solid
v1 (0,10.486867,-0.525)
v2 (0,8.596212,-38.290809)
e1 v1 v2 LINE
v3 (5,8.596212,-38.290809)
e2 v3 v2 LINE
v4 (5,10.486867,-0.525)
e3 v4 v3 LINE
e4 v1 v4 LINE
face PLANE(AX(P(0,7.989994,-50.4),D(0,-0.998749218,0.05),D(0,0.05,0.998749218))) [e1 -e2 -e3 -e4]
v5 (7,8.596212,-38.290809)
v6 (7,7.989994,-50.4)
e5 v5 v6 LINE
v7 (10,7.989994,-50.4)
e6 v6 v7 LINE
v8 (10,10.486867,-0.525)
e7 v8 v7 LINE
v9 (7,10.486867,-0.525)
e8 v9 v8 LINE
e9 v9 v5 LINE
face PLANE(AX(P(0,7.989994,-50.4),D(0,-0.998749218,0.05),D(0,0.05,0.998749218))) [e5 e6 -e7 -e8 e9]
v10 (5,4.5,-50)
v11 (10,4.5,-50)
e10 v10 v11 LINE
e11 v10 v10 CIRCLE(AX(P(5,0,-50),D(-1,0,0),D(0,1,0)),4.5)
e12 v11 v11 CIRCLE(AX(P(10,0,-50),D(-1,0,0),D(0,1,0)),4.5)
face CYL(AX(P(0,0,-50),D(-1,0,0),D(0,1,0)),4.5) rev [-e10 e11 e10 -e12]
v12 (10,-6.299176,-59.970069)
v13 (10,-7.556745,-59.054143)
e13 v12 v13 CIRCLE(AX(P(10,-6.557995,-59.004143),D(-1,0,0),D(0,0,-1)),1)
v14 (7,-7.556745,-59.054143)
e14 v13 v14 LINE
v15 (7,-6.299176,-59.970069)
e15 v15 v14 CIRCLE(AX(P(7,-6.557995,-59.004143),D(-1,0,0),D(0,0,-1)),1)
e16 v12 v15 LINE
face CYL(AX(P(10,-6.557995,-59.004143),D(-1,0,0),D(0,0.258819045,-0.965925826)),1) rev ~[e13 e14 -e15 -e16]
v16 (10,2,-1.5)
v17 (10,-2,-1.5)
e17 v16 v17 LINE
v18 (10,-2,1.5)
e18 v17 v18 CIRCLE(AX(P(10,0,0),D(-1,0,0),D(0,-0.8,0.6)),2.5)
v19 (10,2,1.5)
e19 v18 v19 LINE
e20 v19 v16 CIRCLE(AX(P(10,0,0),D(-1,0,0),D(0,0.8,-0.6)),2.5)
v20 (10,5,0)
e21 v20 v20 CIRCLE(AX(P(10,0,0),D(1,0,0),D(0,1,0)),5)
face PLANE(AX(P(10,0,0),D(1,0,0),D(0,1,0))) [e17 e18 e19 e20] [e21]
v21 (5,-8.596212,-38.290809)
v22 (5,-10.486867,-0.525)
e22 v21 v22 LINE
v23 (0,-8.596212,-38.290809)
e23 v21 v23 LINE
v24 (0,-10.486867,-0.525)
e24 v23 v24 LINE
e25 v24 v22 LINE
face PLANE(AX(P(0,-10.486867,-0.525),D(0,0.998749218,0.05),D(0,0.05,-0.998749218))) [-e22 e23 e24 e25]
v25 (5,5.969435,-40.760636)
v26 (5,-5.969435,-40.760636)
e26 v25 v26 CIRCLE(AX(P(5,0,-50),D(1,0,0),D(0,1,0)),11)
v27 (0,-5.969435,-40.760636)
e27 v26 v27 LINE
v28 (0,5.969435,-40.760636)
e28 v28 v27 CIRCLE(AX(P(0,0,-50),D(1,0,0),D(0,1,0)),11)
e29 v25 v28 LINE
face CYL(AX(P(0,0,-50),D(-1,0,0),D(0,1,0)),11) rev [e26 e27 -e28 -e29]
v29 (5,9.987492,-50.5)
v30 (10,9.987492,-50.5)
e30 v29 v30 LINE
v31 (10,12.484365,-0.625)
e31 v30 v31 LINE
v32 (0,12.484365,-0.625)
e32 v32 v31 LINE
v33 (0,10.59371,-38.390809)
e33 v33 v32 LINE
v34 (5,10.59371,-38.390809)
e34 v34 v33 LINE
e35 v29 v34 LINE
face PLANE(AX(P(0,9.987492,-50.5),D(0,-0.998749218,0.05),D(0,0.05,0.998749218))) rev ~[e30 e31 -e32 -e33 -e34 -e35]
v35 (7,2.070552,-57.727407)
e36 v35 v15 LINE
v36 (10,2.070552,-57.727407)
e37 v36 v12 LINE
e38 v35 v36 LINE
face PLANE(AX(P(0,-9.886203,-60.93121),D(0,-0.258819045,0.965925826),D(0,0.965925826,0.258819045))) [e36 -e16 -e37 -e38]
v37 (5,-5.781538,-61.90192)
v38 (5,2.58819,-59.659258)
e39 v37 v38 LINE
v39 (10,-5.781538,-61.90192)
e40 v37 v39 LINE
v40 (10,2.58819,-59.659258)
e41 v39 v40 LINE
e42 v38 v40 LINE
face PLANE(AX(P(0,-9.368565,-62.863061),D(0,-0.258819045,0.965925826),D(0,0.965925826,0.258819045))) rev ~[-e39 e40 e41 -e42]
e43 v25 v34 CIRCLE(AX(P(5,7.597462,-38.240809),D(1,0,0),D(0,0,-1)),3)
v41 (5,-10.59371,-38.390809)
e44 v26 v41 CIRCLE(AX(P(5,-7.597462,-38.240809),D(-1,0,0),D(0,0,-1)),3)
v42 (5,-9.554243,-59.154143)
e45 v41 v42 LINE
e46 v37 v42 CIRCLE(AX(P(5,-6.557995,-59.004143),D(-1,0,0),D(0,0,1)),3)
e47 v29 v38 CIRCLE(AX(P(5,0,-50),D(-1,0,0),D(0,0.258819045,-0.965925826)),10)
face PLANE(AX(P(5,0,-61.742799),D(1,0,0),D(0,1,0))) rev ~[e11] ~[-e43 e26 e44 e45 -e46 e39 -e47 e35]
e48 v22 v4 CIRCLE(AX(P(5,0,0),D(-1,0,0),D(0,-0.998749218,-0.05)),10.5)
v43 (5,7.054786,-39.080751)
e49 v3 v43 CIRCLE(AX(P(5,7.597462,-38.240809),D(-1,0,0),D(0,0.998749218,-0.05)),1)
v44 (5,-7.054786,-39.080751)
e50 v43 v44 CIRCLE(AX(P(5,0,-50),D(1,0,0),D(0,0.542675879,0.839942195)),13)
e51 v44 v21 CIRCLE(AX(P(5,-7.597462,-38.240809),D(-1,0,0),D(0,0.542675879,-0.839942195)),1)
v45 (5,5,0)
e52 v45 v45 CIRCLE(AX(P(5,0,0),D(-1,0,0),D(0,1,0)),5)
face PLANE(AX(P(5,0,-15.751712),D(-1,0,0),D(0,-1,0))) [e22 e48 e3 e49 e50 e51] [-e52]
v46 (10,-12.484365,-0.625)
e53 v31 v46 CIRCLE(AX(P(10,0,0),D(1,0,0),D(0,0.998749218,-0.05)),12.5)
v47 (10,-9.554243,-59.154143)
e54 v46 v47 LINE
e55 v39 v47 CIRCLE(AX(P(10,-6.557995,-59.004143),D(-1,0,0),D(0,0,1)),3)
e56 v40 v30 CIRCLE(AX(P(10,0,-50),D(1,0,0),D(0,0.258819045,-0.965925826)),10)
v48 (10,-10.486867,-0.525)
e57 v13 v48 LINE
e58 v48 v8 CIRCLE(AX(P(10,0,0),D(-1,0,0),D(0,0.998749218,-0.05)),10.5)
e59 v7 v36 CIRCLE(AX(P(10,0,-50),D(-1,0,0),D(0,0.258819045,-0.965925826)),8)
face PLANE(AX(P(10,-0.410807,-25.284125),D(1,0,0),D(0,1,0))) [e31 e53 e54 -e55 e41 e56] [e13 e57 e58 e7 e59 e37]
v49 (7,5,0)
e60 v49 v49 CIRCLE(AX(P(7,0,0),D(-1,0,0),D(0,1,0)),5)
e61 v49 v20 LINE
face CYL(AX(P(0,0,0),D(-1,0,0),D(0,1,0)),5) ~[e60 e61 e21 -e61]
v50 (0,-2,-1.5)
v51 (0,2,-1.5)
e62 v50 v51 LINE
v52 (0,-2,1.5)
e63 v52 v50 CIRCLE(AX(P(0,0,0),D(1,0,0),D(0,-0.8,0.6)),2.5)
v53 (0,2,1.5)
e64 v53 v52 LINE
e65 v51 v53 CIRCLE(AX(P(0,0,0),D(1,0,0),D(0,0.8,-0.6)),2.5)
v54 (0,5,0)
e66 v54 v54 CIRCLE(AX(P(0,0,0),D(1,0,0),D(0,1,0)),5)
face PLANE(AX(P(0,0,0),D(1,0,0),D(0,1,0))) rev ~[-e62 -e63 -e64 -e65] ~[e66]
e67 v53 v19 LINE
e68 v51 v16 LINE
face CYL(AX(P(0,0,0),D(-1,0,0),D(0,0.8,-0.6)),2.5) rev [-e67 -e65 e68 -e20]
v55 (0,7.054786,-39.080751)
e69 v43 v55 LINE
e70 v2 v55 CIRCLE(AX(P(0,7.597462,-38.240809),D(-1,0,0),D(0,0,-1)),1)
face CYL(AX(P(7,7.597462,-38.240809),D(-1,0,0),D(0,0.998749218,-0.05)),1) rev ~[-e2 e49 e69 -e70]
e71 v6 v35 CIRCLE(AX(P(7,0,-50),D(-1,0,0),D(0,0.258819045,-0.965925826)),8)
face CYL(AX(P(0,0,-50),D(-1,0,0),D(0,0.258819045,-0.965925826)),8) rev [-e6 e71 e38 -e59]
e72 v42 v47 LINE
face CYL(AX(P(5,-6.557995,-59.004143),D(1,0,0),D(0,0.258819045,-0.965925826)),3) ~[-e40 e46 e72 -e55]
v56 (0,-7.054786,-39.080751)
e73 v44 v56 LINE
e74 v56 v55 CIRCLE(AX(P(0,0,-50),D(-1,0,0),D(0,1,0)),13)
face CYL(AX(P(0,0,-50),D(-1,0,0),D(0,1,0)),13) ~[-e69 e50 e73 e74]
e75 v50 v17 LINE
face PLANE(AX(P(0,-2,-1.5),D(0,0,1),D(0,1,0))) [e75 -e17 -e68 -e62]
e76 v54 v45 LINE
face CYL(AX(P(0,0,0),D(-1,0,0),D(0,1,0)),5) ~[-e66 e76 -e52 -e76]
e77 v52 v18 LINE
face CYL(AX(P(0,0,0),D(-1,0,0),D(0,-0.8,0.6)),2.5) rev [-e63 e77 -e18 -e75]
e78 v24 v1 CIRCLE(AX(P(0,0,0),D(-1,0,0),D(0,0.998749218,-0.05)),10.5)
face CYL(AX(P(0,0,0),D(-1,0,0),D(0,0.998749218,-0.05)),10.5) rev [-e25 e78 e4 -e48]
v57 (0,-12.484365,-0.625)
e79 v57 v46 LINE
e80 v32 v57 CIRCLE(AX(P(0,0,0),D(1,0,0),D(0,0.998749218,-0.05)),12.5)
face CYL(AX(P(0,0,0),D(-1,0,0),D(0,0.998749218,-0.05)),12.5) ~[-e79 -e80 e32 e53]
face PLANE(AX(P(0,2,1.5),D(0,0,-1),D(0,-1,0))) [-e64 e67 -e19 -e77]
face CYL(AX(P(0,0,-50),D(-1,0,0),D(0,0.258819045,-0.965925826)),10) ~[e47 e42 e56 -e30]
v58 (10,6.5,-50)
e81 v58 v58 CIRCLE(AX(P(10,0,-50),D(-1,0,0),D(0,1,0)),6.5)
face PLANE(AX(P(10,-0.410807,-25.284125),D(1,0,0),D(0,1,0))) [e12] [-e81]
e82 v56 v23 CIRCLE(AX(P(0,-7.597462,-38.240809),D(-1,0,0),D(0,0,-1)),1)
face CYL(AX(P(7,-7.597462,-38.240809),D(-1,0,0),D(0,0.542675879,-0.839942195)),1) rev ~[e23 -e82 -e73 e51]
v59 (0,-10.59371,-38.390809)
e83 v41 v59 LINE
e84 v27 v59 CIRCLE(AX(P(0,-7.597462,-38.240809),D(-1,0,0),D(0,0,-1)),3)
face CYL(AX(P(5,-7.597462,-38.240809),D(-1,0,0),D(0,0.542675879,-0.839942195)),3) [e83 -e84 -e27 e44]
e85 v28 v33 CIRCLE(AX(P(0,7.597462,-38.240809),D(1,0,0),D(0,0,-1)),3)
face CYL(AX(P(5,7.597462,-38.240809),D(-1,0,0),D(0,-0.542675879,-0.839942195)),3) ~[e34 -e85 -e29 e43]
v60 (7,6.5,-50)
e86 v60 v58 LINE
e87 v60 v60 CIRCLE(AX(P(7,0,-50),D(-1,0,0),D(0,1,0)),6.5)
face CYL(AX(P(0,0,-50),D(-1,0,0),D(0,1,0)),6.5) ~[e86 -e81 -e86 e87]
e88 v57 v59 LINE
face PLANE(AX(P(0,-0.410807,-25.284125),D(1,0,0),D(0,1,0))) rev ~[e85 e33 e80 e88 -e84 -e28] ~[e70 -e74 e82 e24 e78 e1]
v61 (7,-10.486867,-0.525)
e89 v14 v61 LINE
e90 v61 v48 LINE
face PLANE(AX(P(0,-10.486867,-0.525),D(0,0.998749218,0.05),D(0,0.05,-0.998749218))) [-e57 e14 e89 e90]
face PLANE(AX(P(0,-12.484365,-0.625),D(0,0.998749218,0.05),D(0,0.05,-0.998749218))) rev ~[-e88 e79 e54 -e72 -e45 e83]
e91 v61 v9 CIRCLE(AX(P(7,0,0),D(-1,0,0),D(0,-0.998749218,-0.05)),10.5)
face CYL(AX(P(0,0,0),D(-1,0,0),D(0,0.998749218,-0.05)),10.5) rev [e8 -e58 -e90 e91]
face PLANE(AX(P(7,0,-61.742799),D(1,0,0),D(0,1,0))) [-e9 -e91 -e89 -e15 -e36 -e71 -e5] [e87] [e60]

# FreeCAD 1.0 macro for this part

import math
import FreeCAD as App
import Part
import Sketcher

V = App.Vector
Q = App.Units.Quantity


def edges_at(feature, points):
    """Names of the edges that pass closest to the given points."""
    edges = feature.Shape.Edges
    near = lambda p: min(range(len(edges)), key=lambda i: edges[i].distToShape(Part.Vertex(*p))[0])
    return sorted({f"Edge{near(p) + 1}" for p in points})


def faces_at(feature, points):
    """Names of the faces that lie closest to the given points."""
    faces = feature.Shape.Faces
    near = lambda p: min(range(len(faces)), key=lambda i: faces[i].distToShape(Part.Vertex(*p))[0])
    return sorted({f"Face{near(p) + 1}" for p in points})

doc = App.newDocument("Part")
body = doc.addObject("PartDesign::Body", "Body")

sketch1 = doc.addObject("Sketcher::SketchObject", "Sketch")
body.addObject(sketch1)
sketch1.AttachmentSupport = (doc.YZ_Plane, [""])
sketch1.MapMode = "FlatFace"
sketch1.addGeometry(Part.LineSegment(V(10, -50, 0), V(12, -1, 0)), False)
sketch1.addGeometry(Part.ArcOfCircle(Part.Circle(V(0, 0, 0), V(0, 0, 1), 12), math.radians(-3), math.radians(183)), False)
sketch1.addGeometry(Part.LineSegment(V(-12, -1, 0), V(-9, -63, 0)), False)
sketch1.addGeometry(Part.LineSegment(V(-9, -63, 0), V(3, -60, 0)), False)
sketch1.addGeometry(Part.ArcOfCircle(Part.Circle(V(0, -50, 0), V(0, 0, 1), 10), math.radians(-75), math.radians(-3)), False)
sketch1.addConstraint(Sketcher.Constraint("Tangent", 0, 2, 1, 1))
sketch1.addConstraint(Sketcher.Constraint("Tangent", 1, 2, 2, 1))
sketch1.addConstraint(Sketcher.Constraint("Coincident", 2, 2, 3, 1))
sketch1.addConstraint(Sketcher.Constraint("Tangent", 3, 2, 4, 1))
sketch1.addConstraint(Sketcher.Constraint("Tangent", 4, 2, 0, 1))
sketch1.addConstraint(Sketcher.Constraint("Coincident", 1, 3, -1, 1))
sketch1.addConstraint(Sketcher.Constraint("PointOnObject", 4, 3, -2))
sketch1.addConstraint(Sketcher.Constraint("Horizontal", 0, 2, 1, 2))
sketch1.addConstraint(Sketcher.Constraint("Radius", 4, Q("10 mm")))
sketch1.addConstraint(Sketcher.Constraint("Radius", 1, Q("12.5 mm")))
sketch1.addConstraint(Sketcher.Constraint("Angle", 3, Q("15 deg")))
sketch1.addConstraint(Sketcher.Constraint("DistanceY", 4, 3, -1, 1, Q("50 mm")))
pad1 = doc.addObject("PartDesign::Pad", "Pad")
body.addObject(pad1)
pad1.Profile = sketch1
pad1.Length = 10

sketch2 = doc.addObject("Sketcher::SketchObject", "Sketch001")
body.addObject(sketch2)
sketch2.AttachmentSupport = (doc.YZ_Plane, [""])
sketch2.MapMode = "FlatFace"
sketch2.addGeometry(Part.ArcOfCircle(Part.Circle(V(0, -50, 0), V(0, 0, 1), 11), math.radians(0), math.radians(180)), False)
sketch2.addGeometry(Part.LineSegment(V(-11, -50, 0), V(-11, -80, 0)), False)
sketch2.addGeometry(Part.LineSegment(V(-11, -80, 0), V(11, -80, 0)), False)
sketch2.addGeometry(Part.LineSegment(V(11, -80, 0), V(11, -50, 0)), False)
sketch2.addConstraint(Sketcher.Constraint("Tangent", 0, 2, 1, 1))
sketch2.addConstraint(Sketcher.Constraint("Coincident", 1, 2, 2, 1))
sketch2.addConstraint(Sketcher.Constraint("Coincident", 2, 2, 3, 1))
sketch2.addConstraint(Sketcher.Constraint("Tangent", 3, 2, 0, 1))
sketch2.addConstraint(Sketcher.Constraint("Vertical", 1))
sketch2.addConstraint(Sketcher.Constraint("Horizontal", 2))
sketch2.addConstraint(Sketcher.Constraint("Vertical", 3))
sketch2.addConstraint(Sketcher.Constraint("PointOnObject", 0, 3, -2))
sketch2.addConstraint(Sketcher.Constraint("Radius", 0, Q("11 mm")))
sketch2.addConstraint(Sketcher.Constraint("DistanceY", 1, 2, 1, 1, Q("30 mm")))
sketch2.addConstraint(Sketcher.Constraint("DistanceY", 0, 3, -1, 1, Q("50 mm")))
pocket1 = doc.addObject("PartDesign::Pocket", "Pocket")
body.addObject(pocket1)
pocket1.Profile = sketch2
pocket1.Length = 5
pocket1.Reversed = True

sketch3 = doc.addObject("Sketcher::SketchObject", "Sketch002")
body.addObject(sketch3)
sketch3.AttachmentSupport = (doc.YZ_Plane, [""])
sketch3.MapMode = "FlatFace"
sketch3.addGeometry(Part.Circle(V(0, -50, 0), V(0, 0, 1), 4.5), False)
sketch3.addConstraint(Sketcher.Constraint("PointOnObject", 0, 3, -2))
sketch3.addConstraint(Sketcher.Constraint("Diameter", 0, Q("9 mm")))
sketch3.addConstraint(Sketcher.Constraint("DistanceY", 0, 3, -1, 1, Q("50 mm")))
pocket2 = doc.addObject("PartDesign::Pocket", "Pocket001")
body.addObject(pocket2)
pocket2.Profile = sketch3
pocket2.Type = "ThroughAll"
pocket2.Reversed = True
doc.recompute()

thickness = doc.addObject("PartDesign::Thickness", "Thickness")
body.addObject(thickness)
thickness.Base = (pocket2, faces_at(pocket2, [(0, 0, -16.712), (10, 0, -25.182)]))
thickness.Value = 2
thickness.Reversed = True
thickness.Join = "Intersection"
doc.recompute()

fillet = doc.addObject("PartDesign::Fillet", "Fillet")
body.addObject(fillet)
fillet.Base = (thickness, edges_at(thickness, [(3.5, 8.502, -40.166), (3.5, -8.502, -40.166), (8.5, -7.495, -60.29)]))
fillet.Radius = 1
doc.recompute()

fillet2 = doc.addObject("PartDesign::Fillet", "Fillet001")
body.addObject(fillet2)
fillet2.Base = (fillet, edges_at(fillet, [(2.5, 10.217, -45.923), (2.5, -10.217, -45.923), (7.5, -9.369, -62.863)]))
fillet2.Radius = 3

sketch4 = doc.addObject("Sketcher::SketchObject", "Sketch003")
body.addObject(sketch4)
sketch4.AttachmentSupport = (doc.YZ_Plane, [""])
sketch4.MapMode = "FlatFace"
sketch4.AttachmentOffset = App.Placement(V(0, 0, 5), App.Rotation())
sketch4.addGeometry(Part.LineSegment(V(10.5, -0.5, 0), V(8.6, -38.3, 0)), False)
sketch4.addGeometry(Part.ArcOfCircle(Part.Circle(V(7.6, -38.2, 0), V(0, 0, 1), 1), math.radians(-123), math.radians(-3)), False)
sketch4.addGeometry(Part.ArcOfCircle(Part.Circle(V(0, -50, 0), V(0, 0, 1), 13), math.radians(57), math.radians(123)), False)
sketch4.addGeometry(Part.ArcOfCircle(Part.Circle(V(-7.6, -38.2, 0), V(0, 0, 1), 1), math.radians(-177), math.radians(-57)), False)
sketch4.addGeometry(Part.LineSegment(V(-8.6, -38.3, 0), V(-10.5, -0.5, 0)), False)
sketch4.addGeometry(Part.ArcOfCircle(Part.Circle(V(0, 0, 0), V(0, 0, 1), 10.5), math.radians(-3), math.radians(183)), False)
sketch4.addConstraint(Sketcher.Constraint("Tangent", 0, 2, 1, 2))
sketch4.addConstraint(Sketcher.Constraint("Tangent", 1, 1, 2, 1))
sketch4.addConstraint(Sketcher.Constraint("Tangent", 2, 2, 3, 2))
sketch4.addConstraint(Sketcher.Constraint("Tangent", 3, 1, 4, 1))
sketch4.addConstraint(Sketcher.Constraint("Tangent", 4, 2, 5, 2))
sketch4.addConstraint(Sketcher.Constraint("Tangent", 5, 1, 0, 1))
sketch4.addConstraint(Sketcher.Constraint("Coincident", 5, 3, -1, 1))
sketch4.addConstraint(Sketcher.Constraint("Equal", 1, 3))
sketch4.addConstraint(Sketcher.Constraint("Symmetric", 1, 3, 3, 3, -2))
sketch4.addConstraint(Sketcher.Constraint("Radius", 1, Q("1 mm")))
sketch4.addConstraint(Sketcher.Constraint("Radius", 2, Q("13 mm")))
sketch4.addConstraint(Sketcher.Constraint("Radius", 5, Q("10.5 mm")))
sketch4.addConstraint(Sketcher.Constraint("DistanceY", 2, 3, -1, 1, Q("50 mm")))
sketch4.addConstraint(Sketcher.Constraint("DistanceY", 0, 2, 1, 3, Q("0.05 mm")))
pad2 = doc.addObject("PartDesign::Pad", "Pad001")
body.addObject(pad2)
pad2.Profile = sketch4
pad2.Length = 2

sketch5 = doc.addObject("Sketcher::SketchObject", "Sketch004")
body.addObject(sketch5)
sketch5.AttachmentSupport = (doc.YZ_Plane, [""])
sketch5.MapMode = "FlatFace"
sketch5.addGeometry(Part.Circle(V(0, 0, 0), V(0, 0, 1), 5), False)
sketch5.addConstraint(Sketcher.Constraint("Coincident", 0, 3, -1, 1))
sketch5.addConstraint(Sketcher.Constraint("Diameter", 0, Q("10 mm")))
pad3 = doc.addObject("PartDesign::Pad", "Pad002")
body.addObject(pad3)
pad3.Profile = sketch5
pad3.Length = 10

sketch6 = doc.addObject("Sketcher::SketchObject", "Sketch005")
body.addObject(sketch6)
sketch6.AttachmentSupport = (doc.YZ_Plane, [""])
sketch6.MapMode = "FlatFace"
sketch6.addGeometry(Part.LineSegment(V(-2, -1.5, 0), V(2, -1.5, 0)), False)
sketch6.addGeometry(Part.ArcOfCircle(Part.Circle(V(0, 0, 0), V(0, 0, 1), 2.5), math.radians(-37), math.radians(37)), False)
sketch6.addGeometry(Part.LineSegment(V(2, 1.5, 0), V(-2, 1.5, 0)), False)
sketch6.addGeometry(Part.ArcOfCircle(Part.Circle(V(0, 0, 0), V(0, 0, 1), 2.5), math.radians(143), math.radians(217)), False)
sketch6.addConstraint(Sketcher.Constraint("Coincident", 0, 2, 1, 1))
sketch6.addConstraint(Sketcher.Constraint("Coincident", 1, 2, 2, 1))
sketch6.addConstraint(Sketcher.Constraint("Coincident", 2, 2, 3, 1))
sketch6.addConstraint(Sketcher.Constraint("Coincident", 3, 2, 0, 1))
sketch6.addConstraint(Sketcher.Constraint("Horizontal", 0))
sketch6.addConstraint(Sketcher.Constraint("Horizontal", 2))
sketch6.addConstraint(Sketcher.Constraint("Coincident", 1, 3, -1, 1))
sketch6.addConstraint(Sketcher.Constraint("Coincident", 3, 3, -1, 1))
sketch6.addConstraint(Sketcher.Constraint("Equal", 1, 3))
sketch6.addConstraint(Sketcher.Constraint("Vertical", 0, 2, 1, 2))
sketch6.addConstraint(Sketcher.Constraint("Radius", 1, Q("2.5 mm")))
sketch6.addConstraint(Sketcher.Constraint("DistanceX", 0, 1, 0, 2, Q("4 mm")))
pocket3 = doc.addObject("PartDesign::Pocket", "Pocket002")
body.addObject(pocket3)
pocket3.Profile = sketch6
pocket3.Type = "ThroughAll"
pocket3.Reversed = True

doc.recompute()
